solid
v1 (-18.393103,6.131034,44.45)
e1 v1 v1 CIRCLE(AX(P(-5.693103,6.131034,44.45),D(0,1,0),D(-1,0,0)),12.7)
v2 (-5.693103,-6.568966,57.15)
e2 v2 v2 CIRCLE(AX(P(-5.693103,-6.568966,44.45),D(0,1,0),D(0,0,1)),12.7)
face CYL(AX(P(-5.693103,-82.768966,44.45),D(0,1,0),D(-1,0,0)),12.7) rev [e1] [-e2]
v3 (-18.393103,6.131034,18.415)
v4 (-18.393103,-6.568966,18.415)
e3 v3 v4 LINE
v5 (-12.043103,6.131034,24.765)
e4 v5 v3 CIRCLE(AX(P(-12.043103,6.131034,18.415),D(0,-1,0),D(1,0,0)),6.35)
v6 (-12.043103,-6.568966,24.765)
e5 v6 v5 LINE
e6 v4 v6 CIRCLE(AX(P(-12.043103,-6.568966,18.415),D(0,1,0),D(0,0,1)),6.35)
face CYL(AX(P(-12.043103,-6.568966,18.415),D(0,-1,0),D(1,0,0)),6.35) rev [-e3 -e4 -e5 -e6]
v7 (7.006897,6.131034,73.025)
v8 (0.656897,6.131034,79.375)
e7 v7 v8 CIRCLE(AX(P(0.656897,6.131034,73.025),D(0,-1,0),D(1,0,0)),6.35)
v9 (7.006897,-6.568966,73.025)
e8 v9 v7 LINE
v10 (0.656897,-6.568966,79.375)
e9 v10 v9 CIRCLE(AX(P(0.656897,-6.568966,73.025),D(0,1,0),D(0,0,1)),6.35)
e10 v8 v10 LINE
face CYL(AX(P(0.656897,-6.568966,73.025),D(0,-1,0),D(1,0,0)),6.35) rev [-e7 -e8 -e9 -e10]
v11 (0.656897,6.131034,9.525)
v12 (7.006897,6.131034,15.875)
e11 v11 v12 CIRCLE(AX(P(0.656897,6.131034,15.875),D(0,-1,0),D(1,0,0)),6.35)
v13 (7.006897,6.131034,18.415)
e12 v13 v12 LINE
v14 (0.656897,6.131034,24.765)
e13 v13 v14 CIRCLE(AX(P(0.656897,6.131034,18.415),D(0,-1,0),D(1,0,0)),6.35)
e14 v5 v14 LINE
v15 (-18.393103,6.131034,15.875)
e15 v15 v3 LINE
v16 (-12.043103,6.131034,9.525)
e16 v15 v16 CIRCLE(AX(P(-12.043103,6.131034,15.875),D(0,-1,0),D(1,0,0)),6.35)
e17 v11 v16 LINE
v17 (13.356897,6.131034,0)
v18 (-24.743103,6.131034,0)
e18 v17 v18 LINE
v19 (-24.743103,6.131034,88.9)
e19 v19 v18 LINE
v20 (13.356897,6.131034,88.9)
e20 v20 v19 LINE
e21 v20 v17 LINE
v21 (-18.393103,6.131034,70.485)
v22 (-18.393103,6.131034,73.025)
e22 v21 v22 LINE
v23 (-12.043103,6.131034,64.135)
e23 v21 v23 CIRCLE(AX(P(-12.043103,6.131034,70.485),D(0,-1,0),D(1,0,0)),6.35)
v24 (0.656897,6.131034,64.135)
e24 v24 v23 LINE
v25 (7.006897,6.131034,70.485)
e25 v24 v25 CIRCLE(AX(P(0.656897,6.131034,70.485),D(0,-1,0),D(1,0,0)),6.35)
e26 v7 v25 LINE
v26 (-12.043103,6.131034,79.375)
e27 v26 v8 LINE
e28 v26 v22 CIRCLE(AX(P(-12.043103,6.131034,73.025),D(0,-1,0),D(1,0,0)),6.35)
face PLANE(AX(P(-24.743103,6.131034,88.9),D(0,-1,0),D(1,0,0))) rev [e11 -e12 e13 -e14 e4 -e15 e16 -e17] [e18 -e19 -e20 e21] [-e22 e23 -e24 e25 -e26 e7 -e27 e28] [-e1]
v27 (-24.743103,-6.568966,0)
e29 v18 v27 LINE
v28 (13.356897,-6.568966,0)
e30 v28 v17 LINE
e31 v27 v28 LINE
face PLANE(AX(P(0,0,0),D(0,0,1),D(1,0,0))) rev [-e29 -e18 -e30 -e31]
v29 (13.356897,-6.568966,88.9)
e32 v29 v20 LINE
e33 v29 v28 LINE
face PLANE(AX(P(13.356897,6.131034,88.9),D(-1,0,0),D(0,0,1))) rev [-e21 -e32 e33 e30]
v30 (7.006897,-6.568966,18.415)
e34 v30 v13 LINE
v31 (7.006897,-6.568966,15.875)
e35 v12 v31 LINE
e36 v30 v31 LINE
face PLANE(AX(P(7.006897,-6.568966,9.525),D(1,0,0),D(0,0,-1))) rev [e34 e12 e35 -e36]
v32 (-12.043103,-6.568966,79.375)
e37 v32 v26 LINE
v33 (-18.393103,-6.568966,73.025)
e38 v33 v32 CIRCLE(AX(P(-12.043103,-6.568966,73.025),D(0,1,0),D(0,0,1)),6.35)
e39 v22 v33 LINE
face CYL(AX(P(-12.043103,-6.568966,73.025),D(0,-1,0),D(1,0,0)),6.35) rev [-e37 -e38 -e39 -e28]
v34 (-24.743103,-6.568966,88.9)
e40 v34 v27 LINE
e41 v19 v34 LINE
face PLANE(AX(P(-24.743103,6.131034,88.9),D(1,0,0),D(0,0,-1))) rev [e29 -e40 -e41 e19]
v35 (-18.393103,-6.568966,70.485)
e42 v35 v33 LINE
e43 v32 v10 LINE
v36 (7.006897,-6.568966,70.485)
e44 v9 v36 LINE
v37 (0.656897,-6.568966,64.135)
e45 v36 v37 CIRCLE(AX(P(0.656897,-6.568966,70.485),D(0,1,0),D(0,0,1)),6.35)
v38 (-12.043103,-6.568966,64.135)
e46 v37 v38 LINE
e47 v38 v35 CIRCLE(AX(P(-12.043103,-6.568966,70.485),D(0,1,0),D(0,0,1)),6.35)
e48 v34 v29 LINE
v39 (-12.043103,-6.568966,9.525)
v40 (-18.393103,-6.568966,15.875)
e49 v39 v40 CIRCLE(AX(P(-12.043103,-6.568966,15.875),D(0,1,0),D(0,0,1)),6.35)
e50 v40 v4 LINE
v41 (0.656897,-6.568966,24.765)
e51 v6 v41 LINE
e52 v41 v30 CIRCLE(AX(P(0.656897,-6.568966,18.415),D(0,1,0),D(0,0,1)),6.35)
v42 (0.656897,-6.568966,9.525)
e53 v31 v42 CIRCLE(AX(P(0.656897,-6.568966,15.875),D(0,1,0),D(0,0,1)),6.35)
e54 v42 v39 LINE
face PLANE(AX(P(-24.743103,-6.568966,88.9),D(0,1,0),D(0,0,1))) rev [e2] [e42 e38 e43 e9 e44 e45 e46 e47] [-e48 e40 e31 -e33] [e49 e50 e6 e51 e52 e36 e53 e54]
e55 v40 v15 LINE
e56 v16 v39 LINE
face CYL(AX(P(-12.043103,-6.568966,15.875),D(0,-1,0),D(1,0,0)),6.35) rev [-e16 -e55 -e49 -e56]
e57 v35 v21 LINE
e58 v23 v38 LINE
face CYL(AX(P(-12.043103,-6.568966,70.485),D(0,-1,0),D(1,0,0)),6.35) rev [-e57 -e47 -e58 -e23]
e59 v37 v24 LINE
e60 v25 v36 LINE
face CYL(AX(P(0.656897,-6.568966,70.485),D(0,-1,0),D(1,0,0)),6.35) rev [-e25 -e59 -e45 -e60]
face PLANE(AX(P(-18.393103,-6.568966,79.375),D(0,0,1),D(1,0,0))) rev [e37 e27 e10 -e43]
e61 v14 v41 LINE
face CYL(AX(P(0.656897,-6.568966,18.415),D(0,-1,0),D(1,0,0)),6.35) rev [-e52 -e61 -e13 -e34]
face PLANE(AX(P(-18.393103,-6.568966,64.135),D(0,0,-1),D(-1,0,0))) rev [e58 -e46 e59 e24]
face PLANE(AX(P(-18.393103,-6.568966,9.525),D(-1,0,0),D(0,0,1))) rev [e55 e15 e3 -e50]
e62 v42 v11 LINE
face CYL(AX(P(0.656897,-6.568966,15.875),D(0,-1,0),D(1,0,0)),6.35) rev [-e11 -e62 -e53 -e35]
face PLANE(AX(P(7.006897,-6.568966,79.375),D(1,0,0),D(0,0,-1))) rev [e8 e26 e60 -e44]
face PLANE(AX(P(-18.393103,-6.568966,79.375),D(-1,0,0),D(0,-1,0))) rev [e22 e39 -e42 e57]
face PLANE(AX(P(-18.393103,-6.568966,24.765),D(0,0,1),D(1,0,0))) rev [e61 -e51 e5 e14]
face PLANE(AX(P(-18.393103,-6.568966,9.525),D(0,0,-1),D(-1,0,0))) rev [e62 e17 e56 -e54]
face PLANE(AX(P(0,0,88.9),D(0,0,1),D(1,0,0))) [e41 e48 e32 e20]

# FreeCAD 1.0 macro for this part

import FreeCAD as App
import Part
import Sketcher
Q = App.Units.Quantity


def edges_at(feature, points):
    """Names of the edges that pass closest to the given points."""
    edges = feature.Shape.Edges
    near = lambda p: min(range(len(edges)), key=lambda i: edges[i].distToShape(Part.Vertex(*p))[0])
    return sorted({f"Edge{near(p) + 1}" for p in points})

doc = App.newDocument("Part")
body = doc.addObject("PartDesign::Body", "Body")

sketch1 = doc.addObject("Sketcher::SketchObject", "Sketch")
body.addObject(sketch1)
sketch1.AttachmentSupport = (doc.XY_Plane, [""])
sketch1.MapMode = "FlatFace"
sketch1.addGeometry([
    Part.LineSegment(App.Vector(-24.743103, 6.131034, 0), App.Vector(-24.743103, -6.568966, 0)),
    Part.LineSegment(App.Vector(-24.743103, -6.568966, 0), App.Vector(13.356897, -6.568966, 0)),
    Part.LineSegment(App.Vector(13.356897, -6.568966, 0), App.Vector(13.356897, 6.131034, 0)),
    Part.LineSegment(App.Vector(13.356897, 6.131034, 0), App.Vector(-24.743103, 6.131034, 0)),
], False)
sketch1.addConstraint([
    Sketcher.Constraint("Coincident", 0, 2, 1, 1),
    Sketcher.Constraint("Coincident", 1, 2, 2, 1),
    Sketcher.Constraint("Coincident", 2, 2, 3, 1),
    Sketcher.Constraint("Coincident", 3, 2, 0, 1),
    Sketcher.Constraint("Vertical", 0),
    Sketcher.Constraint("Horizontal", 1),
    Sketcher.Constraint("Vertical", 2),
    Sketcher.Constraint("Horizontal", 3),
    Sketcher.Constraint("DistanceX", 1, 1, 1, 2, Q("1.5 in")),
    Sketcher.Constraint("DistanceY", 0, 2, 0, 1, Q("0.5 in")),
    Sketcher.Constraint("DistanceX", 0, 2, -1, 1, Q("24.743103 mm")),
    Sketcher.Constraint("DistanceY", 0, 2, -1, 1, Q("6.568966 mm")),
])
pad1 = doc.addObject("PartDesign::Pad", "Pad")
body.addObject(pad1)
pad1.Profile = sketch1
pad1.Length = Q("3.5 in")

sketch2 = doc.addObject("Sketcher::SketchObject", "Sketch001")
body.addObject(sketch2)
sketch2.AttachmentSupport = (doc.XZ_Plane, [""])
sketch2.MapMode = "FlatFace"
sketch2.AttachmentOffset = App.Placement(App.Vector(0, 0, -6.131034), App.Rotation())
sketch2.addGeometry(Part.Circle(App.Vector(-5.693103, 44.45, 0), App.Vector(0, 0, 1), 12.7), False)
sketch2.addConstraint([
    Sketcher.Constraint("Diameter", 0, Q("1 in")),
    Sketcher.Constraint("DistanceY", -1, 1, 0, 3, Q("1.75 in")),
    Sketcher.Constraint("DistanceX", 0, 3, -1, 1, Q("5.693103 mm")),
])
pocket1 = doc.addObject("PartDesign::Pocket", "Pocket")
body.addObject(pocket1)
pocket1.Profile = sketch2
pocket1.Length = Q("3.5 in")
pocket1.Reversed = True

sketch3 = doc.addObject("Sketcher::SketchObject", "Sketch002")
body.addObject(sketch3)
sketch3.AttachmentSupport = (doc.XZ_Plane, [""])
sketch3.MapMode = "FlatFace"
sketch3.AttachmentOffset = App.Placement(App.Vector(0, 0, -6.131034), App.Rotation())
sketch3.addGeometry([
    Part.LineSegment(App.Vector(-18.393103, 9.525, 0), App.Vector(-18.393103, 24.765, 0)),
    Part.LineSegment(App.Vector(-18.393103, 24.765, 0), App.Vector(7.006897, 24.765, 0)),
    Part.LineSegment(App.Vector(7.006897, 24.765, 0), App.Vector(7.006897, 9.525, 0)),
    Part.LineSegment(App.Vector(7.006897, 9.525, 0), App.Vector(-18.393103, 9.525, 0)),
    Part.LineSegment(App.Vector(-18.393103, 64.135, 0), App.Vector(-18.393103, 79.375, 0)),
    Part.LineSegment(App.Vector(-18.393103, 79.375, 0), App.Vector(7.006897, 79.375, 0)),
    Part.LineSegment(App.Vector(7.006897, 79.375, 0), App.Vector(7.006897, 64.135, 0)),
    Part.LineSegment(App.Vector(7.006897, 64.135, 0), App.Vector(-18.393103, 64.135, 0)),
], False)
sketch3.addConstraint([
    Sketcher.Constraint("Coincident", 0, 2, 1, 1),
    Sketcher.Constraint("Coincident", 1, 2, 2, 1),
    Sketcher.Constraint("Coincident", 2, 2, 3, 1),
    Sketcher.Constraint("Coincident", 3, 2, 0, 1),
    Sketcher.Constraint("Coincident", 4, 2, 5, 1),
    Sketcher.Constraint("Coincident", 5, 2, 6, 1),
    Sketcher.Constraint("Coincident", 6, 2, 7, 1),
    Sketcher.Constraint("Coincident", 7, 2, 4, 1),
    Sketcher.Constraint("Vertical", 0),
    Sketcher.Constraint("Horizontal", 1),
    Sketcher.Constraint("Vertical", 2),
    Sketcher.Constraint("Horizontal", 3),
    Sketcher.Constraint("Vertical", 4),
    Sketcher.Constraint("Horizontal", 5),
    Sketcher.Constraint("Vertical", 6),
    Sketcher.Constraint("Horizontal", 7),
    Sketcher.Constraint("Vertical", 3, 2, 4, 2),
    Sketcher.Constraint("Vertical", 2, 2, 5, 2),
    Sketcher.Constraint("Equal", 2, 4),
    Sketcher.Constraint("DistanceX", 1, 1, 1, 2, Q("1 in")),
    Sketcher.Constraint("DistanceY", 0, 1, 0, 2, Q("0.6 in")),
    Sketcher.Constraint("DistanceY", 0, 2, 4, 2, Q("2.15 in")),
    Sketcher.Constraint("DistanceY", -1, 1, 0, 2, Q("0.975 in")),
    Sketcher.Constraint("DistanceX", 0, 2, -1, 1, Q("18.393103 mm")),
])
pocket2 = doc.addObject("PartDesign::Pocket", "Pocket001")
body.addObject(pocket2)
pocket2.Profile = sketch3
pocket2.Length = Q("0.5 in")
pocket2.Reversed = True
doc.recompute()

fillet = doc.addObject("PartDesign::Fillet", "Fillet")
body.addObject(fillet)
fillet.Base = (pocket2, edges_at(pocket2, [
    (-18.393, -0.219, 24.765),
    (-18.393, -0.219, 9.525),
    (7.007, -0.219, 9.525),
    (7.007, -0.219, 24.765),
    (-18.393, -0.219, 79.375),
    (-18.393, -0.219, 64.135),
    (7.007, -0.219, 64.135),
    (7.007, -0.219, 79.375),
]))
fillet.Radius = Q("0.25 in")

doc.recompute()
